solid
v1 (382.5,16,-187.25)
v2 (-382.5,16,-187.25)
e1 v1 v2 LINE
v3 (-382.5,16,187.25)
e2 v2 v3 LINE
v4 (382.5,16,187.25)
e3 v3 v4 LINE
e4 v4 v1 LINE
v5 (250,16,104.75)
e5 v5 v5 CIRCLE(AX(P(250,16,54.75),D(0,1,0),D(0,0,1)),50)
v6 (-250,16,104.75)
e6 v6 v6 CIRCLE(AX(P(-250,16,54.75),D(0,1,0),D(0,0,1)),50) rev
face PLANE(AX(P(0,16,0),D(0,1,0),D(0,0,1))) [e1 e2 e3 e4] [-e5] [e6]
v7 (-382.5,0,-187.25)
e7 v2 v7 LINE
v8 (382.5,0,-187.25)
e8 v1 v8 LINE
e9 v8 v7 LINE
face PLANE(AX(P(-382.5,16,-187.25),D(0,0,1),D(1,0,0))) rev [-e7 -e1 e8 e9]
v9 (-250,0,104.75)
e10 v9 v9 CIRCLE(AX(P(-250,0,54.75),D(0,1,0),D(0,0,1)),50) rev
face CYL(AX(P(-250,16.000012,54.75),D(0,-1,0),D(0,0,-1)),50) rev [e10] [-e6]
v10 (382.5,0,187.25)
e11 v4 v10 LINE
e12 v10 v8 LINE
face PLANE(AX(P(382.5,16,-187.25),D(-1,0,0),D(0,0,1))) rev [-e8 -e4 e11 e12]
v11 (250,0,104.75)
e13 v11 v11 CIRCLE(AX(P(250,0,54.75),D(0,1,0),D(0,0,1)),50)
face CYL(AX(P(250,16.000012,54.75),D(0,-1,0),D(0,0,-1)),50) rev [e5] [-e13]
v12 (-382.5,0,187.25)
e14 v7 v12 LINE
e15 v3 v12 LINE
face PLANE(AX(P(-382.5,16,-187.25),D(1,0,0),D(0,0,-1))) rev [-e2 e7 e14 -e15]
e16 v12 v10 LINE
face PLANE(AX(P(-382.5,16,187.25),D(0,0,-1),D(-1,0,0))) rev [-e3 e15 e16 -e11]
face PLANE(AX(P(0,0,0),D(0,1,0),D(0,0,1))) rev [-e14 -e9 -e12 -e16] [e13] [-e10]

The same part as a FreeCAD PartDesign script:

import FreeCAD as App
import Part
import Sketcher
from FreeCAD import Vector

doc = App.newDocument("Part")
body = doc.addObject("PartDesign::Body", "Body")

# Sketch on XZ plane
sketch1 = body.newObject("Sketcher::SketchObject", "Sketch")
sketch1.AttachmentSupport = (doc.getObject("XZ_Plane"), [""])
sketch1.MapMode = "FlatFace"
sketch1.addGeometry([
    Part.LineSegment(Vector(-382, -187, 0), Vector(-382, 187, 0)),
    Part.LineSegment(Vector(-382, 187, 0), Vector(382, 187, 0)),
    Part.LineSegment(Vector(382, 187, 0), Vector(382, -187, 0)),
    Part.LineSegment(Vector(382, -187, 0), Vector(-382, -187, 0)),
], False)
sketch1.addConstraint([
    Sketcher.Constraint("Coincident", 0, 2, 1, 1),
    Sketcher.Constraint("Coincident", 1, 2, 2, 1),
    Sketcher.Constraint("Coincident", 2, 2, 3, 1),
    Sketcher.Constraint("Coincident", 3, 2, 0, 1),
    Sketcher.Constraint("Vertical", 0),
    Sketcher.Constraint("Horizontal", 1),
    Sketcher.Constraint("Vertical", 2),
    Sketcher.Constraint("Horizontal", 3),
    Sketcher.Constraint("Symmetric", 0, 2, 2, 2, -1, 1),
    Sketcher.Constraint("DistanceX", 1, 1, 1, 2, 765.0),
    Sketcher.Constraint("DistanceY", 0, 1, 0, 2, 374.5),
])
pad1 = body.newObject("PartDesign::Pad", "Pad")
pad1.Profile = sketch1
pad1.Length = 16
pad1.Reversed = True

# Sketch on XZ plane
sketch2 = body.newObject("Sketcher::SketchObject", "Sketch001")
sketch2.AttachmentSupport = (doc.getObject("XZ_Plane"), [""])
sketch2.MapMode = "FlatFace"
sketch2.AttachmentOffset = App.Placement(Vector(0, 0, -16), App.Rotation())
sketch2.addGeometry(Part.Circle(Vector(-250, 55, 0), Vector(0, 0, 1), 50), False)
sketch2.addConstraint([
    Sketcher.Constraint("Diameter", 0, 100.0),
    Sketcher.Constraint("DistanceX", 0, 3, -1, 1, 250.0),
    Sketcher.Constraint("DistanceY", -1, 1, 0, 3, 54.75),
])
pocket1 = body.newObject("PartDesign::Pocket", "Pocket")
pocket1.Profile = sketch2
pocket1.Type = "UpToFirst"
pocket1.Reversed = True

# Sketch on XZ plane
sketch3 = body.newObject("Sketcher::SketchObject", "Sketch002")
sketch3.AttachmentSupport = (doc.getObject("XZ_Plane"), [""])
sketch3.MapMode = "FlatFace"
sketch3.AttachmentOffset = App.Placement(Vector(0, 0, -16), App.Rotation())
sketch3.addGeometry(Part.Circle(Vector(250, 55, 0), Vector(0, 0, 1), 50), False)
sketch3.addConstraint([
    Sketcher.Constraint("Diameter", 0, 100.0),
    Sketcher.Constraint("DistanceX", -1, 1, 0, 3, 250.0),
    Sketcher.Constraint("DistanceY", -1, 1, 0, 3, 54.75),
])
pocket2 = body.newObject("PartDesign::Pocket", "Pocket001")
pocket2.Profile = sketch3
pocket2.Type = "UpToFirst"
pocket2.Reversed = True

# Sketch on XZ plane
sketch4 = body.newObject("Sketcher::SketchObject", "Sketch003")
sketch4.AttachmentSupport = (doc.getObject("XZ_Plane"), [""])
sketch4.MapMode = "FlatFace"
sketch4.AttachmentOffset = App.Placement(Vector(0, 0, -16), App.Rotation())
sketch4.addGeometry([
    Part.Circle(Vector(-250, 55, 0), Vector(0, 0, 1), 50),
    Part.Circle(Vector(250, 55, 0), Vector(0, 0, 1), 50),
], False)
sketch4.addConstraint([
    Sketcher.Constraint("Equal", 0, 1),
    Sketcher.Constraint("Symmetric", 0, 3, 1, 3, -2),
    Sketcher.Constraint("Diameter", 0, 100.0),
    Sketcher.Constraint("DistanceX", 0, 3, -1, 1, 250.0),
    Sketcher.Constraint("DistanceY", -1, 1, 0, 3, 54.75),
])
pocket3 = body.newObject("PartDesign::Pocket", "Pocket002")
pocket3.Profile = sketch4
pocket3.Length = 1

doc.recompute()
